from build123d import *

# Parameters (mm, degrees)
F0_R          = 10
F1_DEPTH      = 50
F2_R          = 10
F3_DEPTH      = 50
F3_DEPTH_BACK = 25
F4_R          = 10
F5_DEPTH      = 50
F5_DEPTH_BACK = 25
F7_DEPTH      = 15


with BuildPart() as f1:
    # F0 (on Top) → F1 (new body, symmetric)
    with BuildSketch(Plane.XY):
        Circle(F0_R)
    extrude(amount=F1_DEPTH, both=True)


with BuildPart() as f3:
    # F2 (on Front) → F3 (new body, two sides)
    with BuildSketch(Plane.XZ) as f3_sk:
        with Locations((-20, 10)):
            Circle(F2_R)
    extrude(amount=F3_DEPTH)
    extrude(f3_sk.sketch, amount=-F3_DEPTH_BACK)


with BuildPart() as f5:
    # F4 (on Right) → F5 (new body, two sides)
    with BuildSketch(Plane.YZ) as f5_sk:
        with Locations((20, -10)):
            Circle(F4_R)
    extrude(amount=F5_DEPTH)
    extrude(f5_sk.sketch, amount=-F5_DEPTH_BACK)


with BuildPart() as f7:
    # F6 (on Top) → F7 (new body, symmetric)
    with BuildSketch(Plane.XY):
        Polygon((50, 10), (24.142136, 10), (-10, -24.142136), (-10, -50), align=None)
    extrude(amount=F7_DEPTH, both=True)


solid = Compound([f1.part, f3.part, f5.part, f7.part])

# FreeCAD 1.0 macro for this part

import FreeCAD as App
import Part
import Sketcher
from FreeCAD import Vector


def add_polygon(sketch, points):
    """Adds a closed chain of lines whose ends are joined by coincident constraints."""
    first, n = sketch.GeometryCount, len(points)
    for a, b in zip(points, points[1:] + points[:1]):
        sketch.addGeometry(Part.LineSegment(App.Vector(*a, 0), App.Vector(*b, 0)), False)
    for i in range(n):
        sketch.addConstraint(Sketcher.Constraint("Coincident", first + i, 2, first + (i + 1) % n, 1))

doc = App.newDocument("Part")
body = doc.addObject("PartDesign::Body", "Body")

# Sketch on XY plane
sketch1 = doc.addObject("Sketcher::SketchObject", "Sketch")
body.addObject(sketch1)
sketch1.AttachmentSupport = (doc.XY_Plane, [""])
sketch1.MapMode = "FlatFace"
sketch1.addGeometry(Part.Circle(Vector(0, 0, 0), Vector(0, 0, 1), 10), False)
sketch1.addConstraint([
    Sketcher.Constraint("Coincident", 0, 3, -1, 1),
    Sketcher.Constraint("Diameter", 0, 20.0),
])
pad1 = doc.addObject("PartDesign::Pad", "Pad")
body.addObject(pad1)
pad1.Profile = sketch1
pad1.Length = 100
pad1.Midplane = True
body2 = doc.addObject("PartDesign::Body", "Body001")

# Sketch on XZ plane
sketch2 = doc.addObject("Sketcher::SketchObject", "Sketch001")
body2.addObject(sketch2)
sketch2.AttachmentSupport = (doc.getObject("XZ_Plane001"), [""])
sketch2.MapMode = "FlatFace"
sketch2.addGeometry(Part.Circle(Vector(-20, 10, 0), Vector(0, 0, 1), 10), False)
sketch2.addConstraint([
    Sketcher.Constraint("Diameter", 0, 20.0),
    Sketcher.Constraint("DistanceX", 0, 3, -1, 1, 20.0),
    Sketcher.Constraint("DistanceY", -1, 1, 0, 3, 10.0),
])
pad2 = doc.addObject("PartDesign::Pad", "Pad001")
body2.addObject(pad2)
pad2.Profile = sketch2
pad2.Type = "TwoLengths"
pad2.Length = 50
pad2.Length2 = 25
body3 = doc.addObject("PartDesign::Body", "Body002")

# Sketch on YZ plane
sketch3 = doc.addObject("Sketcher::SketchObject", "Sketch002")
body3.addObject(sketch3)
sketch3.AttachmentSupport = (doc.getObject("YZ_Plane002"), [""])
sketch3.MapMode = "FlatFace"
sketch3.addGeometry(Part.Circle(Vector(20, -10, 0), Vector(0, 0, 1), 10), False)
sketch3.addConstraint([
    Sketcher.Constraint("Diameter", 0, 20.0),
    Sketcher.Constraint("DistanceX", -1, 1, 0, 3, 20.0),
    Sketcher.Constraint("DistanceY", 0, 3, -1, 1, 10.0),
])
pad3 = doc.addObject("PartDesign::Pad", "Pad002")
body3.addObject(pad3)
pad3.Profile = sketch3
pad3.Type = "TwoLengths"
pad3.Length = 50
pad3.Length2 = 25
body4 = doc.addObject("PartDesign::Body", "Body003")

# Sketch on XY plane
sketch4 = doc.addObject("Sketcher::SketchObject", "Sketch003")
body4.addObject(sketch4)
sketch4.AttachmentSupport = (doc.getObject("XY_Plane003"), [""])
sketch4.MapMode = "FlatFace"
add_polygon(sketch4, [(50, 10), (24, 10), (-10, -24), (-10, -50)])  # lines 0-3
sketch4.addConstraint([
    Sketcher.Constraint("Horizontal", 0),
    Sketcher.Constraint("Vertical", 2),
    Sketcher.Constraint("Parallel", 1, 3),
    Sketcher.Constraint("Equal", 0, 2),
    Sketcher.Constraint("DistanceY", -1, 1, 0, 2, 10.0),
    Sketcher.Constraint("DistanceX", 1, 2, -1, 1, 10.0),
    Sketcher.Constraint("DistanceY", 2, 2, -1, 1, 50.0),
    Sketcher.Constraint("Distance", 1, 48.284272),
])
pad4 = doc.addObject("PartDesign::Pad", "Pad003")
body4.addObject(pad4)
pad4.Profile = sketch4
pad4.Length = 30
pad4.Midplane = True

doc.recompute()
